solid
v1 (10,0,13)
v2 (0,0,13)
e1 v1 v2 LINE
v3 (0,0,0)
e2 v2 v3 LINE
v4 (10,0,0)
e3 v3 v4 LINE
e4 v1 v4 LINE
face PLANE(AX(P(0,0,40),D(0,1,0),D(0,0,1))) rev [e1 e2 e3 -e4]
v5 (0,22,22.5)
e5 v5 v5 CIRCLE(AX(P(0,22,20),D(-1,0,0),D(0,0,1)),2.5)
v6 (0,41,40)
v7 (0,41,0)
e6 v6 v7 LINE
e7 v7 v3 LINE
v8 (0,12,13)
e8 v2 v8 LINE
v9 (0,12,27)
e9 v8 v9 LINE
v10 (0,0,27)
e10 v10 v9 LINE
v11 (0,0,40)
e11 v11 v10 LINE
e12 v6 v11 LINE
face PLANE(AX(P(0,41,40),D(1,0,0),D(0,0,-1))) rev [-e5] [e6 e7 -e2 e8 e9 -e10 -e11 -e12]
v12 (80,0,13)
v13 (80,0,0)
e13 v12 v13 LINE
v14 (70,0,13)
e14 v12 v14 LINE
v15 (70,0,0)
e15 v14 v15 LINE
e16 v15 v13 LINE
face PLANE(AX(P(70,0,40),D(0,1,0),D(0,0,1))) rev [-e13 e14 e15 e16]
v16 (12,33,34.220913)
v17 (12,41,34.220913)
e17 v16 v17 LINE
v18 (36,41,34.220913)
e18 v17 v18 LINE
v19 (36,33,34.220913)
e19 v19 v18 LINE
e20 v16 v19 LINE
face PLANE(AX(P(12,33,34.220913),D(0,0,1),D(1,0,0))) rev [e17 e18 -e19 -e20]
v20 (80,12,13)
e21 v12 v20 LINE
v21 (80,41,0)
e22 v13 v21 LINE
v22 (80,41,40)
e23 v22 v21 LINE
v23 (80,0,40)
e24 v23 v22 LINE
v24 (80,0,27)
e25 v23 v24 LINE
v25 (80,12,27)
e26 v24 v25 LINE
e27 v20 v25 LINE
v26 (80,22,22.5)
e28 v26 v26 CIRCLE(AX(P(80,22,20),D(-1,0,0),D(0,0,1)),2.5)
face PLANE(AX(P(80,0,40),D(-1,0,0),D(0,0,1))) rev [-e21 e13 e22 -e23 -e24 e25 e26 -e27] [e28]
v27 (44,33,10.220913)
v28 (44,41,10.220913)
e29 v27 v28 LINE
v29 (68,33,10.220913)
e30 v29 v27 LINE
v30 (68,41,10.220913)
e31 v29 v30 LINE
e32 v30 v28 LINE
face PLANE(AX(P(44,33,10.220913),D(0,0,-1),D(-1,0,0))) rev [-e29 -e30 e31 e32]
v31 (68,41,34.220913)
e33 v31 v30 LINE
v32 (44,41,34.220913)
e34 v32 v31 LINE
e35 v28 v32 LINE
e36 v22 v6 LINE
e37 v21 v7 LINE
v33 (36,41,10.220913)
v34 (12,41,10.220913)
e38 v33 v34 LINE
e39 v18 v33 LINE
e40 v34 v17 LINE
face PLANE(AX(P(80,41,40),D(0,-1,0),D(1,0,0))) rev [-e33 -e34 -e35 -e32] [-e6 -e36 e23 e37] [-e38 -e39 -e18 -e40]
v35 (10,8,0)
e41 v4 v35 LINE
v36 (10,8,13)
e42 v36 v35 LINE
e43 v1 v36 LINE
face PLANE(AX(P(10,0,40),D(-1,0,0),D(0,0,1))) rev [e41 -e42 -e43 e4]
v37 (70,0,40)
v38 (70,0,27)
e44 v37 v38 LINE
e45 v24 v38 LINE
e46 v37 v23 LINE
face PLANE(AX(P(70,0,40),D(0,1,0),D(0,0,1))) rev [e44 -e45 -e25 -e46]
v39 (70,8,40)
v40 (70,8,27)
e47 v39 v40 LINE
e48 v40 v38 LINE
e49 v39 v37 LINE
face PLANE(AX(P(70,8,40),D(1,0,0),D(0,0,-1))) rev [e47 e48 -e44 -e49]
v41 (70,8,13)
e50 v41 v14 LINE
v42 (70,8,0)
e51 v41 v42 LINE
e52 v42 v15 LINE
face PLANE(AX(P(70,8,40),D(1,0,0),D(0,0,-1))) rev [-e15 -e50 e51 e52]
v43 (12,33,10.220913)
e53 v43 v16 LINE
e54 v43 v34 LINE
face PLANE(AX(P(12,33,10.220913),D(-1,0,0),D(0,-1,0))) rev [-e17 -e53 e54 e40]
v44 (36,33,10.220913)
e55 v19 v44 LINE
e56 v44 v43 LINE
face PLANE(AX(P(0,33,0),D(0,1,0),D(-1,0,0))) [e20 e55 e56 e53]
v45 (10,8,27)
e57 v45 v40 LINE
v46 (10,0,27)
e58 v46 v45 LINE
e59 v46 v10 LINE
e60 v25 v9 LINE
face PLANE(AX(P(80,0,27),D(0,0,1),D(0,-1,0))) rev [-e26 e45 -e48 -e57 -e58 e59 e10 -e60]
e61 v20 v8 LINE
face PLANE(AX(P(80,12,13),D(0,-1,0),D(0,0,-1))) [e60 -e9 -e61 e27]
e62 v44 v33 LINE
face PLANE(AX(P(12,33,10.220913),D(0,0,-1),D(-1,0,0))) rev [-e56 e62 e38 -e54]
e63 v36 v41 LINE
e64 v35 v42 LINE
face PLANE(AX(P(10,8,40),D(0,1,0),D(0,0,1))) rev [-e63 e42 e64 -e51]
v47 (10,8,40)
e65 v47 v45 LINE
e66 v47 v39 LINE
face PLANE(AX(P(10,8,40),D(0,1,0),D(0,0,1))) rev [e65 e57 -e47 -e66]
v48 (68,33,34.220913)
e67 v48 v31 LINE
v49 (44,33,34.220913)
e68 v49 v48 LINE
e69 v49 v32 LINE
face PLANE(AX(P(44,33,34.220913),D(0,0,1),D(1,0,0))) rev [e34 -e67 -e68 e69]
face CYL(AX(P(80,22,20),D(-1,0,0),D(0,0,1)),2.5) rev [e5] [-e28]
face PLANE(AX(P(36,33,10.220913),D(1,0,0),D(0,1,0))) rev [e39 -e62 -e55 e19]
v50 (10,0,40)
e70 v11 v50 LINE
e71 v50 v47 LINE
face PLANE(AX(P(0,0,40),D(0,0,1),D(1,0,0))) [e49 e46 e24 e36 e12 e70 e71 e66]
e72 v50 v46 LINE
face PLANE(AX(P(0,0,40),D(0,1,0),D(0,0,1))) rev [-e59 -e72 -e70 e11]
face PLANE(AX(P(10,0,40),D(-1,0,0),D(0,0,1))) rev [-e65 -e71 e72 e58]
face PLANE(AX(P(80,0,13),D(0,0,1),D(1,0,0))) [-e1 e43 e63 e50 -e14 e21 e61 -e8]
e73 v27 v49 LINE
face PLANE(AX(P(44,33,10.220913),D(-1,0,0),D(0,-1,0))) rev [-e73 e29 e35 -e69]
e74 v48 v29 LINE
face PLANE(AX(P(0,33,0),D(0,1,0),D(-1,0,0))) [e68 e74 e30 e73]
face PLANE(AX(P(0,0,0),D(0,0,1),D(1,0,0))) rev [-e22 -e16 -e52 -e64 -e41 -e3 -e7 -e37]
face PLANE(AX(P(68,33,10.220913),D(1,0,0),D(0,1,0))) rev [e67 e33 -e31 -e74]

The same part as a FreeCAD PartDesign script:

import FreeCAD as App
import Part
import Sketcher

V = App.Vector

doc = App.newDocument("Part")
body = doc.addObject("PartDesign::Body", "Body")

# Sketch on XY plane
sketch1 = body.newObject("Sketcher::SketchObject", "Sketch")
sketch1.AttachmentSupport = (doc.getObject("XY_Plane"), [""])
sketch1.MapMode = "FlatFace"
sketch1.addGeometry([
    Part.LineSegment(V(0, 0, 0), V(10, 0, 0)),  # 0
    Part.LineSegment(V(10, 0, 0), V(10, 8, 0)),  # 1
    Part.LineSegment(V(10, 8, 0), V(70, 8, 0)),  # 2
    Part.LineSegment(V(70, 8, 0), V(70, 0, 0)),  # 3
    Part.LineSegment(V(70, 0, 0), V(80, 0, 0)),  # 4
    Part.LineSegment(V(80, 0, 0), V(80, 41, 0)),  # 5
    Part.LineSegment(V(80, 41, 0), V(0, 41, 0)),  # 6
    Part.LineSegment(V(0, 41, 0), V(0, 0, 0)),  # 7
], False)
sketch1.addConstraint([
    Sketcher.Constraint("Coincident", 0, 2, 1, 1),
    Sketcher.Constraint("Coincident", 1, 2, 2, 1),
    Sketcher.Constraint("Coincident", 2, 2, 3, 1),
    Sketcher.Constraint("Coincident", 3, 2, 4, 1),
    Sketcher.Constraint("Coincident", 4, 2, 5, 1),
    Sketcher.Constraint("Coincident", 5, 2, 6, 1),
    Sketcher.Constraint("Coincident", 6, 2, 7, 1),
    Sketcher.Constraint("Coincident", 7, 2, 0, 1),
    Sketcher.Constraint("Horizontal", 0),
    Sketcher.Constraint("Vertical", 1),
    Sketcher.Constraint("Horizontal", 2),
    Sketcher.Constraint("Vertical", 3),
    Sketcher.Constraint("Horizontal", 4),
    Sketcher.Constraint("Vertical", 5),
    Sketcher.Constraint("Horizontal", 6),
    Sketcher.Constraint("Vertical", 7),
    Sketcher.Constraint("Coincident", 7, 2, -1, 1),
    Sketcher.Constraint("PointOnObject", 3, 2, -1),
    Sketcher.Constraint("Equal", 0, 4),
    Sketcher.Constraint("DistanceX", 0, 1, 0, 2, 10.0),
    Sketcher.Constraint("DistanceX", 2, 1, 2, 2, 60.0),
    Sketcher.Constraint("DistanceY", 1, 1, 1, 2, 8.0),
    Sketcher.Constraint("DistanceY", 5, 1, 5, 2, 41.0),
])
pad1 = body.newObject("PartDesign::Pad", "Pad")
pad1.Profile = sketch1
pad1.Length = 40

# Sketch on YZ plane
sketch2 = body.newObject("Sketcher::SketchObject", "Sketch001")
sketch2.AttachmentSupport = (doc.getObject("YZ_Plane"), [""])
sketch2.MapMode = "FlatFace"
sketch2.addGeometry([
    Part.Circle(V(22, 20, 0), V(0, 0, 1), 2.5),  # 0
    Part.LineSegment(V(12, 13, 0), V(0, 13, 0)),  # 1
    Part.LineSegment(V(0, 13, 0), V(0, 27, 0)),  # 2
    Part.LineSegment(V(0, 27, 0), V(12, 27, 0)),  # 3
    Part.LineSegment(V(12, 27, 0), V(12, 13, 0)),  # 4
], False)
sketch2.addConstraint([
    Sketcher.Constraint("Coincident", 1, 2, 2, 1),
    Sketcher.Constraint("Coincident", 2, 2, 3, 1),
    Sketcher.Constraint("Coincident", 3, 2, 4, 1),
    Sketcher.Constraint("Coincident", 4, 2, 1, 1),
    Sketcher.Constraint("Horizontal", 1),
    Sketcher.Constraint("Vertical", 2),
    Sketcher.Constraint("Horizontal", 3),
    Sketcher.Constraint("Vertical", 4),
    Sketcher.Constraint("PointOnObject", 1, 2, -2),
    Sketcher.Constraint("Diameter", 0, 5.0),
    Sketcher.Constraint("DistanceX", 1, 2, 1, 1, 12.0),
    Sketcher.Constraint("DistanceY", 2, 1, 2, 2, 14.0),
    Sketcher.Constraint("DistanceX", -1, 1, 0, 3, 22.0),
    Sketcher.Constraint("DistanceY", -1, 1, 0, 3, 20.0),
    Sketcher.Constraint("DistanceY", -1, 1, 1, 2, 13.0),
])
pocket1 = body.newObject("PartDesign::Pocket", "Pocket")
pocket1.Profile = sketch2
pocket1.Type = "ThroughAll"
pocket1.Reversed = True

# Sketch on XZ plane
sketch3 = body.newObject("Sketcher::SketchObject", "Sketch002")
sketch3.AttachmentSupport = (doc.getObject("XZ_Plane"), [""])
sketch3.MapMode = "FlatFace"
sketch3.AttachmentOffset = App.Placement(V(0, 0, -41), App.Rotation())
sketch3.addGeometry([
    Part.LineSegment(V(12, 10, 0), V(12, 34, 0)),  # 0
    Part.LineSegment(V(12, 34, 0), V(36, 34, 0)),  # 1
    Part.LineSegment(V(36, 34, 0), V(36, 10, 0)),  # 2
    Part.LineSegment(V(36, 10, 0), V(12, 10, 0)),  # 3
    Part.LineSegment(V(44, 10, 0), V(44, 34, 0)),  # 4
    Part.LineSegment(V(44, 34, 0), V(68, 34, 0)),  # 5
    Part.LineSegment(V(68, 34, 0), V(68, 10, 0)),  # 6
    Part.LineSegment(V(68, 10, 0), V(44, 10, 0)),  # 7
], False)
sketch3.addConstraint([
    Sketcher.Constraint("Coincident", 0, 2, 1, 1),
    Sketcher.Constraint("Coincident", 1, 2, 2, 1),
    Sketcher.Constraint("Coincident", 2, 2, 3, 1),
    Sketcher.Constraint("Coincident", 3, 2, 0, 1),
    Sketcher.Constraint("Coincident", 4, 2, 5, 1),
    Sketcher.Constraint("Coincident", 5, 2, 6, 1),
    Sketcher.Constraint("Coincident", 6, 2, 7, 1),
    Sketcher.Constraint("Coincident", 7, 2, 4, 1),
    Sketcher.Constraint("Vertical", 0),
    Sketcher.Constraint("Horizontal", 1),
    Sketcher.Constraint("Vertical", 2),
    Sketcher.Constraint("Horizontal", 3),
    Sketcher.Constraint("Vertical", 4),
    Sketcher.Constraint("Horizontal", 5),
    Sketcher.Constraint("Vertical", 6),
    Sketcher.Constraint("Horizontal", 7),
    Sketcher.Constraint("Horizontal", 1, 2, 4, 2),
    Sketcher.Constraint("Horizontal", 3, 2, 6, 2),
    Sketcher.Constraint("Equal", 3, 5),
    Sketcher.Constraint("Equal", 7, 0),
    Sketcher.Constraint("DistanceX", 1, 1, 1, 2, 24.0),
    Sketcher.Constraint("DistanceX", -1, 1, 0, 2, 12.0),
    Sketcher.Constraint("DistanceX", -1, 1, 4, 2, 44.0),
    Sketcher.Constraint("DistanceY", -1, 1, 0, 2, 34.220913),
])
pocket2 = body.newObject("PartDesign::Pocket", "Pocket001")
pocket2.Profile = sketch3
pocket2.Length = 8
pocket2.Reversed = True

doc.recompute()
